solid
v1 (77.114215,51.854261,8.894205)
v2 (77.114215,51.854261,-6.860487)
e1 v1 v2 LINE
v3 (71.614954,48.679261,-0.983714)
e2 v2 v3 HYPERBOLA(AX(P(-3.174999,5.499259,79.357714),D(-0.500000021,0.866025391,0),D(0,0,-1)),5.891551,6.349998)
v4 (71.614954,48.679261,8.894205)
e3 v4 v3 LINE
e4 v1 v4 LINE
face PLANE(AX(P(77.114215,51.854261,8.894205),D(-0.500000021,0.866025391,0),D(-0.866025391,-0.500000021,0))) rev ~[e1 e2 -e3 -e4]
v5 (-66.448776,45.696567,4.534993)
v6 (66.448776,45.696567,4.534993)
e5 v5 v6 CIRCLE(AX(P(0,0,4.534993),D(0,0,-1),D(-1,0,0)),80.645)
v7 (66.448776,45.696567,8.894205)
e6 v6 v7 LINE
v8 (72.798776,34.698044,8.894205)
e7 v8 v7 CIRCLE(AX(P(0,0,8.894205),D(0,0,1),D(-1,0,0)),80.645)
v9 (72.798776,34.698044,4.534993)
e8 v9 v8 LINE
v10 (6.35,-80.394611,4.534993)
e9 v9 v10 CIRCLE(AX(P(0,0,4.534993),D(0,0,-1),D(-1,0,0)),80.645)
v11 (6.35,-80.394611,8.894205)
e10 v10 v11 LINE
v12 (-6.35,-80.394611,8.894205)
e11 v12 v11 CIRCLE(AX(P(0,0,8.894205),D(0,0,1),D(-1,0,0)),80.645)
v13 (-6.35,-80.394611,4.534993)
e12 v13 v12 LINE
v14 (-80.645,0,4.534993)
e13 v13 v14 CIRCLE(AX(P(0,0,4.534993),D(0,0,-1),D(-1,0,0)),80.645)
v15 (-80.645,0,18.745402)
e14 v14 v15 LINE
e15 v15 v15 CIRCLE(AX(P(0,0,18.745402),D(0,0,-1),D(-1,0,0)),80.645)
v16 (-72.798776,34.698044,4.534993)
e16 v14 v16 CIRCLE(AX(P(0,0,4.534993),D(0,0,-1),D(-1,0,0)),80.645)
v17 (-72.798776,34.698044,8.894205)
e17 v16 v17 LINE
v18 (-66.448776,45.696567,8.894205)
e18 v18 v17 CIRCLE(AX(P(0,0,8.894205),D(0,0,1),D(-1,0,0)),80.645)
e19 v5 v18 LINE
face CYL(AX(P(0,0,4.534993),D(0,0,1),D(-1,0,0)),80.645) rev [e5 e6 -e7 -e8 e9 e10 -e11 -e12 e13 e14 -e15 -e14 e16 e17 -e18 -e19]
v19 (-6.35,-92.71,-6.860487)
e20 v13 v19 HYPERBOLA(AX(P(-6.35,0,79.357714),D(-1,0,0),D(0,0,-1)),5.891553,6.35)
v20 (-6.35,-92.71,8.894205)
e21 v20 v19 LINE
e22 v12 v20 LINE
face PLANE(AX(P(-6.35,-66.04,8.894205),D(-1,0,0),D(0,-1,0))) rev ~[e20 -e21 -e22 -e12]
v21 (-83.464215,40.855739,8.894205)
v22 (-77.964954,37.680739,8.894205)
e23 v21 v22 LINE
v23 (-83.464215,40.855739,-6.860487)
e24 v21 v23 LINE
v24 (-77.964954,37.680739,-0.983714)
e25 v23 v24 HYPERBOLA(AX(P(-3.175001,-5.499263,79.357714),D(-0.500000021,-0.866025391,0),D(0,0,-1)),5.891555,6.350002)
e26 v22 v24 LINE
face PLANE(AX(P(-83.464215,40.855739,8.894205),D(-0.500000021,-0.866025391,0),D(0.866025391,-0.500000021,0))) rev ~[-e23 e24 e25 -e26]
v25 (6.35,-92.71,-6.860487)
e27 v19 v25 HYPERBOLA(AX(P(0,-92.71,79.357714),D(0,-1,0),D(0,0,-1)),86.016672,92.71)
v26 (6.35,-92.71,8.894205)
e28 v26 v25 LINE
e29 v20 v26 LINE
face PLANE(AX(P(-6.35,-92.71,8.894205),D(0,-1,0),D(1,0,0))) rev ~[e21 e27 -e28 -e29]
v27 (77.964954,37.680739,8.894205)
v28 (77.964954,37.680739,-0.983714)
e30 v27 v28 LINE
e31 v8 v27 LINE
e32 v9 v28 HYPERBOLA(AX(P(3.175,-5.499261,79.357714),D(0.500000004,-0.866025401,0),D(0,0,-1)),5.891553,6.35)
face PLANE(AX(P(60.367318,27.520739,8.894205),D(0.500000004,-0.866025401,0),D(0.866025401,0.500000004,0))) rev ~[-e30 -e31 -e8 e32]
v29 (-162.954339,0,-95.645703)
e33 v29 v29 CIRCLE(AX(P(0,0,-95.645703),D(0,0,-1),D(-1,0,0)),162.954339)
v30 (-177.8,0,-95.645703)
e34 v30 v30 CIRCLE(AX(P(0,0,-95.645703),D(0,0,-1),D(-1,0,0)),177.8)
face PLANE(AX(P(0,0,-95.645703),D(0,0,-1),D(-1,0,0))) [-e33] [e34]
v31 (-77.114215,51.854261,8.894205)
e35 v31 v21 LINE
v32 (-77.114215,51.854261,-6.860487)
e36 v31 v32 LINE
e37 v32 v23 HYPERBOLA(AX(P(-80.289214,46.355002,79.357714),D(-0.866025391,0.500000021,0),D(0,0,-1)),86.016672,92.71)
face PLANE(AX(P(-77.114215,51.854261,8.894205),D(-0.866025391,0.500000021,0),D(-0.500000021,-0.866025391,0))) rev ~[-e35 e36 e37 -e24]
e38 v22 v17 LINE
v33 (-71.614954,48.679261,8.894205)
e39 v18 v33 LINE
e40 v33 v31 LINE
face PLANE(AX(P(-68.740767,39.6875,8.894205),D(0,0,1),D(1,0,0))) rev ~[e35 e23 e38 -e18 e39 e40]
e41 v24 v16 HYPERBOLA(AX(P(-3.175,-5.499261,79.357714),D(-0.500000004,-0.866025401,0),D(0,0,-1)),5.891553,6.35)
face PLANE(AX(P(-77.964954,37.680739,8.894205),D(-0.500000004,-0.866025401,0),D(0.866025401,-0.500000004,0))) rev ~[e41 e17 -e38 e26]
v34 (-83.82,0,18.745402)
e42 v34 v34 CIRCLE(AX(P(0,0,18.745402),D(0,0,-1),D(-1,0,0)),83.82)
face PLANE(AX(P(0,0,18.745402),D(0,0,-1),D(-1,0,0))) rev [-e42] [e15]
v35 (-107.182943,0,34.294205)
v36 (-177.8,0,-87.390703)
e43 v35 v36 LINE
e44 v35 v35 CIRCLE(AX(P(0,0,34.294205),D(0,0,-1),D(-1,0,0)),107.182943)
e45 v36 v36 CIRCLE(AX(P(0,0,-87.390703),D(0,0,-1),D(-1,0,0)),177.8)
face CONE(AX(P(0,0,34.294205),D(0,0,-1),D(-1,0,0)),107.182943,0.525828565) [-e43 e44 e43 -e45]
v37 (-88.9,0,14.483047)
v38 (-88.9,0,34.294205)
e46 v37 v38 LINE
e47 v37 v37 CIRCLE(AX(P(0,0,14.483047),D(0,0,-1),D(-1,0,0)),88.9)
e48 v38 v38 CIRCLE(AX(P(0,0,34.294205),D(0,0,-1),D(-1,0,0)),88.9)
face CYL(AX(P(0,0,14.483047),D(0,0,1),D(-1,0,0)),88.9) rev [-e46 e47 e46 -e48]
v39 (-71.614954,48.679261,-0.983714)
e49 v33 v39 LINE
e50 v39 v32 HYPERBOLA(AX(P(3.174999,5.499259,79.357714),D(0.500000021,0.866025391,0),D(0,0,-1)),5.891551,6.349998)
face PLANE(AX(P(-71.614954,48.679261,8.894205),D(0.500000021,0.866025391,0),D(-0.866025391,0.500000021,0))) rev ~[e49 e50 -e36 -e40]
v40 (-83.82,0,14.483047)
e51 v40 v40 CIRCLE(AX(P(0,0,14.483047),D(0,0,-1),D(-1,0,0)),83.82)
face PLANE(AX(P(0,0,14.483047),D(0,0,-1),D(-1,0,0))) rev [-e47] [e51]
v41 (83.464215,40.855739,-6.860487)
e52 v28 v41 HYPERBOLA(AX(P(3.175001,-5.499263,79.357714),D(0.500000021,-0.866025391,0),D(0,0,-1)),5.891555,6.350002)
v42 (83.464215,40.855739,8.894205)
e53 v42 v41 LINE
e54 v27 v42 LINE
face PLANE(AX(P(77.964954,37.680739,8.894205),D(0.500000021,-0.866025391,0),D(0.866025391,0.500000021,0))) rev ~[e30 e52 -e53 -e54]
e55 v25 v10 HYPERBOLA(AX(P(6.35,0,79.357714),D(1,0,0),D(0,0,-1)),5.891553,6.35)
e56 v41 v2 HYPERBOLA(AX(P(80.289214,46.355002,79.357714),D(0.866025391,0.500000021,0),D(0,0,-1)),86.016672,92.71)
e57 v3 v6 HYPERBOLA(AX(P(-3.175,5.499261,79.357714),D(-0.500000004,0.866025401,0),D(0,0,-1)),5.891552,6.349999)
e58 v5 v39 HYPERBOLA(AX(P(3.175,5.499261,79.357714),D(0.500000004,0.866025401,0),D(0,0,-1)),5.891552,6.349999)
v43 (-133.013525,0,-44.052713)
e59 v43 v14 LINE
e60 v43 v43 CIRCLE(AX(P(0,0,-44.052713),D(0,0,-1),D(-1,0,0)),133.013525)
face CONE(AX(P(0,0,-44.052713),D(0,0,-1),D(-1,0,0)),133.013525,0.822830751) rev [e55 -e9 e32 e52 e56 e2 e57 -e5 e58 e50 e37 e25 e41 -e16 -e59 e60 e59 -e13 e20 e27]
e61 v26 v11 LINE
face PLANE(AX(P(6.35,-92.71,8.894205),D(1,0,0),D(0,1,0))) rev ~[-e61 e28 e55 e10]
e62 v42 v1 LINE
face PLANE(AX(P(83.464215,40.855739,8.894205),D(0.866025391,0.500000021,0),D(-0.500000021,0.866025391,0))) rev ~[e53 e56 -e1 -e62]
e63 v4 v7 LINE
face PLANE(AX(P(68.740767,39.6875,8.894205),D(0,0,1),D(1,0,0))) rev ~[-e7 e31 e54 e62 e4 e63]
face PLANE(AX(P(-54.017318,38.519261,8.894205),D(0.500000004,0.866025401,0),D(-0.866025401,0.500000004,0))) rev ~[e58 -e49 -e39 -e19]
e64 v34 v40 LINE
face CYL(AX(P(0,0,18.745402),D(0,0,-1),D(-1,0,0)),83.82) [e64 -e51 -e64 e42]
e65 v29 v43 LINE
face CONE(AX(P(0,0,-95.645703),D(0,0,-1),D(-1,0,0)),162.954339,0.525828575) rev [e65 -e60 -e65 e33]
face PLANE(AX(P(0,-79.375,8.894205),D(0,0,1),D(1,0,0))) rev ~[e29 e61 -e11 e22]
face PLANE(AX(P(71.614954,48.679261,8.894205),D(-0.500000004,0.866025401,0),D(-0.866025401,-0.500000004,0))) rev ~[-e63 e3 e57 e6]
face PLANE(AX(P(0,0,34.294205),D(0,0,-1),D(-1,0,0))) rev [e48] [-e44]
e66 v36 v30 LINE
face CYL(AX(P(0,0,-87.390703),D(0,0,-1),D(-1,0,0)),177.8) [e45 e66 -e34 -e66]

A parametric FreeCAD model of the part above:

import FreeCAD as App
import Part
import Sketcher
from FreeCAD import Vector
Q = App.Units.Quantity


def add_polygon(sketch, points):
    """Adds a closed chain of lines whose ends are joined by coincident constraints."""
    first, n = sketch.GeometryCount, len(points)
    for a, b in zip(points, points[1:] + points[:1]):
        sketch.addGeometry(Part.LineSegment(App.Vector(*a, 0), App.Vector(*b, 0)), False)
    for i in range(n):
        sketch.addConstraint(Sketcher.Constraint("Coincident", first + i, 2, first + (i + 1) % n, 1))

doc = App.newDocument("Part")
params = doc.addObject("Spreadsheet::Sheet", "Params")
for row, (alias, value) in enumerate([
    ("sketch1_width", "0.2 in"),
    ("sketch1_width2", "0.125 in"),
    ("sketch1_height", "0.325 in"),
    ("revolution_angle", "360 deg"),
    ("sketch2_width", "0.5 in"),
    ("sketch2_length", "0.8 in"),
    ("sketch2_length2", "0.5 in"),
    ("sketch2_height", "1.05 in"),
    ("sketch2_length3", "0.25 in"),
    ("pocket1_length", "1 in"),
], start=1):
    params.set(f"A{row}", alias)
    params.set(f"B{row}", "=" + value)
    params.setAlias(f"B{row}", alias)

body = doc.addObject("PartDesign::Body", "Body")

# Sketch on XZ plane
sketch1 = doc.addObject("Sketcher::SketchObject", "Sketch")
body.addObject(sketch1)
sketch1.AttachmentSupport = (doc.XZ_Plane, [""])
sketch1.MapMode = "FlatFace"
add_polygon(sketch1, [(-83.8, 18.7), (-83.8, 14.5), (-88.9, 14.5), (-88.9, 34.3), (-107.2, 34.3), (-177.8, -87.4), (-177.8, -95.6), (-163, -95.6), (-133, -44.1), (-80.6, 4.5), (-80.6, 18.7)])  # lines 0-10
sketch1.addConstraint([
    Sketcher.Constraint("Vertical", 0),
    Sketcher.Constraint("Horizontal", 1),
    Sketcher.Constraint("Vertical", 2),
    Sketcher.Constraint("Horizontal", 3),
    Sketcher.Constraint("Vertical", 5),
    Sketcher.Constraint("Horizontal", 6),
    Sketcher.Constraint("Vertical", 9),
    Sketcher.Constraint("Horizontal", 10),
    Sketcher.Constraint("Parallel", 4, 7),
    Sketcher.Constraint("DistanceX", 1, 2, 1, 1, Q("0.2 in")),
    Sketcher.Constraint("DistanceX", 4, 2, -1, 1, Q("7 in")),
    Sketcher.Constraint("DistanceX", 0, 2, -1, 1, Q("3.3 in")),
    Sketcher.Constraint("DistanceX", 10, 2, 10, 1, Q("0.125 in")),
    Sketcher.Constraint("DistanceY", 5, 2, 5, 1, Q("0.325 in")),
    Sketcher.Constraint("Distance", 4, 140.6911),
    Sketcher.Constraint("DistanceX", 6, 1, 6, 2, 14.845661),
    Sketcher.Constraint("DistanceY", 9, 1, 9, 2, 14.210409),
    Sketcher.Constraint("DistanceY", -1, 1, 9, 2, 18.745402),
    Sketcher.Constraint("Distance", 8, 71.436878),
    Sketcher.Constraint("DistanceX", 3, 2, 3, 1, 18.282943),
    Sketcher.Constraint("DistanceY", 0, 2, 0, 1, 4.262355),
    Sketcher.Constraint("DistanceY", 2, 1, 2, 2, 19.811158),
])
sketch1.setExpression("Constraints[20]", "Params.sketch1_width")
sketch1.setExpression("Constraints[23]", "Params.sketch1_width2")
sketch1.setExpression("Constraints[24]", "Params.sketch1_height")
revolution = doc.addObject("PartDesign::Revolution", "Revolution")
body.addObject(revolution)
revolution.Profile = sketch1
revolution.ReferenceAxis = (sketch1, ["V_Axis"])
revolution.setExpression("Angle", "Params.revolution_angle")

# Sketch on XY plane
sketch2 = doc.addObject("Sketcher::SketchObject", "Sketch001")
body.addObject(sketch2)
sketch2.AttachmentSupport = (doc.XY_Plane, [""])
sketch2.MapMode = "FlatFace"
sketch2.AttachmentOffset = App.Placement(Vector(0, 0, 8.894205), App.Rotation())
add_polygon(sketch2, [(6, -66), (-6, -66), (-6, -93), (6, -93)])  # lines 0-3
add_polygon(sketch2, [(-54, 39), (-72, 49), (-77, 52), (-83, 41), (-78, 38), (-60, 28)])  # lines 4-9
add_polygon(sketch2, [(60, 28), (78, 38), (83, 41), (77, 52), (72, 49), (54, 39)])  # lines 10-15
sketch2.addConstraint([
    Sketcher.Constraint("Horizontal", 0),
    Sketcher.Constraint("Vertical", 1),
    Sketcher.Constraint("Horizontal", 2),
    Sketcher.Constraint("Vertical", 3),
    Sketcher.Constraint("Symmetric", 7, 2, 10, 2, -2),
    Sketcher.Constraint("Symmetric", 6, 2, 11, 2, -2),
    Sketcher.Constraint("Symmetric", 5, 2, 12, 2, -2),
    Sketcher.Constraint("Symmetric", 4, 2, 13, 2, -2),
    Sketcher.Constraint("Symmetric", 9, 2, 14, 2, -2),
    Sketcher.Constraint("Symmetric", 8, 2, 15, 2, -2),
    Sketcher.Constraint("Parallel", 4, 5),
    Sketcher.Constraint("Perpendicular", 5, 6),
    Sketcher.Constraint("Perpendicular", 6, 7),
    Sketcher.Constraint("Parallel", 7, 8),
    Sketcher.Constraint("Perpendicular", 8, 9),
    Sketcher.Constraint("Equal", 5, 7),
    Sketcher.Constraint("DistanceX", 0, 2, 0, 1, Q("0.5 in")),
    Sketcher.Constraint("Angle", 4, Q("150 deg")),
    Sketcher.Constraint("Distance", 4, Q("0.8 in")),
    Sketcher.Constraint("Distance", 6, Q("0.5 in")),
    Sketcher.Constraint("DistanceY", 1, 2, 1, 1, Q("1.05 in")),
    Sketcher.Constraint("DistanceY", 0, 2, -1, 1, Q("2.6 in")),
    Sketcher.Constraint("Distance", 5, Q("0.25 in")),
    Sketcher.Constraint("DistanceX", 0, 2, -1, 1, Q("0.25 in")),
    Sketcher.Constraint("DistanceY", -1, 1, 4, 2, 48.679261),
    Sketcher.Constraint("DistanceX", 9, 2, -1, 1, 54.017318),
])
sketch2.setExpression("Constraints[32]", "Params.sketch2_width")
sketch2.setExpression("Constraints[34]", "Params.sketch2_length")
sketch2.setExpression("Constraints[35]", "Params.sketch2_length2")
sketch2.setExpression("Constraints[36]", "Params.sketch2_height")
sketch2.setExpression("Constraints[38]", "Params.sketch2_length3")
pocket1 = doc.addObject("PartDesign::Pocket", "Pocket")
body.addObject(pocket1)
pocket1.Profile = sketch2
pocket1.setExpression("Length", "Params.pocket1_length")

doc.recompute()
